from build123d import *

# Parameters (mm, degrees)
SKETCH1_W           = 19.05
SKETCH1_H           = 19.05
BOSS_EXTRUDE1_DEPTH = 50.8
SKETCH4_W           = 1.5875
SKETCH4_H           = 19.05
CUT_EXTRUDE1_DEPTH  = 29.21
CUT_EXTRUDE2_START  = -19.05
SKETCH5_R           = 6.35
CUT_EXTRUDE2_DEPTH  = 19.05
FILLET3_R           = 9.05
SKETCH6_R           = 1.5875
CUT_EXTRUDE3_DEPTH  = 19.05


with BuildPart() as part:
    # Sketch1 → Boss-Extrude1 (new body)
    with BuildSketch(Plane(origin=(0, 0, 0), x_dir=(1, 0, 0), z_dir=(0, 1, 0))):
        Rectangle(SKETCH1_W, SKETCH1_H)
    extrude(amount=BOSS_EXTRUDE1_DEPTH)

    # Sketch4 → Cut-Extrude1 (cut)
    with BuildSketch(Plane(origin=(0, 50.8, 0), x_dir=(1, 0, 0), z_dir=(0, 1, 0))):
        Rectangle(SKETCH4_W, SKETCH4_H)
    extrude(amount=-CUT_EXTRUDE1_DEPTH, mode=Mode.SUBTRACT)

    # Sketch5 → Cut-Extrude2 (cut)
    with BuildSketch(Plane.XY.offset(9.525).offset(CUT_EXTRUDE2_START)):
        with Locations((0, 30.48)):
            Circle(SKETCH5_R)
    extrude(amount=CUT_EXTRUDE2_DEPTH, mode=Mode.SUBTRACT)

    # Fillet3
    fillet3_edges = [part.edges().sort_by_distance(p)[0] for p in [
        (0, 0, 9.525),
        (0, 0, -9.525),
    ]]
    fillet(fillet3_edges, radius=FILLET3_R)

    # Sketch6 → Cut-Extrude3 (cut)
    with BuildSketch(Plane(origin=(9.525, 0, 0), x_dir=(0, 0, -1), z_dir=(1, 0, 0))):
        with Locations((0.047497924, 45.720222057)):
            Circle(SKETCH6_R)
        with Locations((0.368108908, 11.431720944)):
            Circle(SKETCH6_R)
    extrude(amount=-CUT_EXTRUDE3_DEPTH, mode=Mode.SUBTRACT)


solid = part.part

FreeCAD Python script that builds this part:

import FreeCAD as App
import Part
import Sketcher
from FreeCAD import Vector
Q = App.Units.Quantity


def edges_at(feature, points):
    """Names of the edges that pass closest to the given points."""
    edges = feature.Shape.Edges
    near = lambda p: min(range(len(edges)), key=lambda i: edges[i].distToShape(Part.Vertex(*p))[0])
    return sorted({f"Edge{near(p) + 1}" for p in points})


def add_polygon(sketch, points):
    """Adds a closed chain of lines whose ends are joined by coincident constraints."""
    first, n = sketch.GeometryCount, len(points)
    for a, b in zip(points, points[1:] + points[:1]):
        sketch.addGeometry(Part.LineSegment(App.Vector(*a, 0), App.Vector(*b, 0)), False)
    for i in range(n):
        sketch.addConstraint(Sketcher.Constraint("Coincident", first + i, 2, first + (i + 1) % n, 1))

doc = App.newDocument("Part")
params = doc.addObject("Spreadsheet::Sheet", "Params")
for row, (alias, value) in enumerate([
    ("sketch1_width", "0.75 in"),
    ("pad1_length", "2 in"),
    ("sketch2_height", "0.75 in"),
    ("sketch2_width", "0.0625 in"),
    ("pocket1_length", "1.15 in"),
    ("sketch3_diameter", "0.5 in"),
    ("pocket2_length", "0.75 in"),
    ("fillet_radius", "9.05 mm"),
    ("sketch4_diameter", "0.125 in"),
    ("pocket3_length", "0.75 in"),
], start=1):
    params.set(f"A{row}", alias)
    params.set(f"B{row}", "=" + value)
    params.setAlias(f"B{row}", alias)

body = doc.addObject("PartDesign::Body", "Body")

sketch1 = doc.addObject("Sketcher::SketchObject", "Sketch")
body.addObject(sketch1)
sketch1.AttachmentSupport = (doc.XZ_Plane, [""])
sketch1.MapMode = "FlatFace"
add_polygon(sketch1, [(-10, -10), (-10, 10), (10, 10), (10, -10)])
sketch1.addConstraint([
    Sketcher.Constraint("Vertical", 0),
    Sketcher.Constraint("Horizontal", 1),
    Sketcher.Constraint("Vertical", 2),
    Sketcher.Constraint("Horizontal", 3),
    Sketcher.Constraint("Symmetric", 0, 2, 2, 2, -1, 1),
    Sketcher.Constraint("Equal", 3, 0),
    Sketcher.Constraint("DistanceX", 1, 1, 1, 2, Q("0.75 in")),
])
sketch1.setExpression("Constraints[10]", "Params.sketch1_width")
pad1 = doc.addObject("PartDesign::Pad", "Pad")
body.addObject(pad1)
pad1.Profile = sketch1
pad1.setExpression("Length", "Params.pad1_length")
pad1.Reversed = True

sketch2 = doc.addObject("Sketcher::SketchObject", "Sketch001")
body.addObject(sketch2)
sketch2.AttachmentSupport = (doc.XZ_Plane, [""])
sketch2.MapMode = "FlatFace"
sketch2.AttachmentOffset = App.Placement(Vector(0, 0, -2 * 25.4), App.Rotation())
add_polygon(sketch2, [(-0.8, -9.5), (-0.8, 9.5), (0.8, 9.5), (0.8, -9.5)])
sketch2.addConstraint([
    Sketcher.Constraint("Vertical", 0),
    Sketcher.Constraint("Horizontal", 1),
    Sketcher.Constraint("Vertical", 2),
    Sketcher.Constraint("Horizontal", 3),
    Sketcher.Constraint("Symmetric", 0, 2, 2, 2, -1, 1),
    Sketcher.Constraint("DistanceY", 0, 1, 0, 2, Q("0.75 in")),
    Sketcher.Constraint("DistanceX", 1, 1, 1, 2, Q("0.0625 in")),
])
sketch2.setExpression("Constraints[9]", "Params.sketch2_height")
sketch2.setExpression("Constraints[10]", "Params.sketch2_width")
pocket1 = doc.addObject("PartDesign::Pocket", "Pocket")
body.addObject(pocket1)
pocket1.Profile = sketch2
pocket1.setExpression("Length", "Params.pocket1_length")
pocket1.Reversed = True

sketch3 = doc.addObject("Sketcher::SketchObject", "Sketch002")
body.addObject(sketch3)
sketch3.AttachmentSupport = (doc.XY_Plane, [""])
sketch3.MapMode = "FlatFace"
sketch3.AttachmentOffset = App.Placement(Vector(0, 0, -0.375 * 25.4), App.Rotation())
sketch3.addGeometry(Part.Circle(Vector(0, 30, 0), Vector(0, 0, 1), 6), False)
sketch3.addConstraint([
    Sketcher.Constraint("PointOnObject", 0, 3, -2),
    Sketcher.Constraint("Diameter", 0, Q("0.5 in")),
    Sketcher.Constraint("DistanceY", -1, 1, 0, 3, Q("1.2 in")),
])
sketch3.setExpression("Constraints[1]", "Params.sketch3_diameter")
pocket2 = doc.addObject("PartDesign::Pocket", "Pocket001")
body.addObject(pocket2)
pocket2.Profile = sketch3
pocket2.setExpression("Length", "Params.pocket2_length")
pocket2.Reversed = True
doc.recompute()

fillet = doc.addObject("PartDesign::Fillet", "Fillet")
body.addObject(fillet)
fillet.Base = (pocket2, edges_at(pocket2, [(0, 0, 9.525), (0, 0, -9.525)]))
fillet.setExpression("Radius", "Params.fillet_radius")

sketch4 = doc.addObject("Sketcher::SketchObject", "Sketch003")
body.addObject(sketch4)
sketch4.AttachmentSupport = (doc.YZ_Plane, [""])
sketch4.MapMode = "FlatFace"
sketch4.AttachmentOffset = App.Placement(Vector(0, 0, 0.375 * 25.4), App.Rotation())
sketch4.addGeometry([
    Part.Circle(Vector(45.7, 0, 0), Vector(0, 0, 1), 1.6),
    Part.Circle(Vector(11.4, -0.4, 0), Vector(0, 0, 1), 1.6),
], False)
sketch4.addConstraint([
    Sketcher.Constraint("Equal", 0, 1),
    Sketcher.Constraint("Diameter", 0, Q("0.125 in")),
    Sketcher.Constraint("DistanceX", 1, 3, 0, 3, 34.288501),
    Sketcher.Constraint("DistanceX", -1, 1, 1, 3, 11.431721),
    Sketcher.Constraint("DistanceY", 1, 3, -1, 1, 0.368109),
    Sketcher.Constraint("DistanceY", 1, 3, 0, 3, 0.320611),
])
sketch4.setExpression("Constraints[1]", "Params.sketch4_diameter")
pocket3 = doc.addObject("PartDesign::Pocket", "Pocket002")
body.addObject(pocket3)
pocket3.Profile = sketch4
pocket3.setExpression("Length", "Params.pocket3_length")

doc.recompute()
